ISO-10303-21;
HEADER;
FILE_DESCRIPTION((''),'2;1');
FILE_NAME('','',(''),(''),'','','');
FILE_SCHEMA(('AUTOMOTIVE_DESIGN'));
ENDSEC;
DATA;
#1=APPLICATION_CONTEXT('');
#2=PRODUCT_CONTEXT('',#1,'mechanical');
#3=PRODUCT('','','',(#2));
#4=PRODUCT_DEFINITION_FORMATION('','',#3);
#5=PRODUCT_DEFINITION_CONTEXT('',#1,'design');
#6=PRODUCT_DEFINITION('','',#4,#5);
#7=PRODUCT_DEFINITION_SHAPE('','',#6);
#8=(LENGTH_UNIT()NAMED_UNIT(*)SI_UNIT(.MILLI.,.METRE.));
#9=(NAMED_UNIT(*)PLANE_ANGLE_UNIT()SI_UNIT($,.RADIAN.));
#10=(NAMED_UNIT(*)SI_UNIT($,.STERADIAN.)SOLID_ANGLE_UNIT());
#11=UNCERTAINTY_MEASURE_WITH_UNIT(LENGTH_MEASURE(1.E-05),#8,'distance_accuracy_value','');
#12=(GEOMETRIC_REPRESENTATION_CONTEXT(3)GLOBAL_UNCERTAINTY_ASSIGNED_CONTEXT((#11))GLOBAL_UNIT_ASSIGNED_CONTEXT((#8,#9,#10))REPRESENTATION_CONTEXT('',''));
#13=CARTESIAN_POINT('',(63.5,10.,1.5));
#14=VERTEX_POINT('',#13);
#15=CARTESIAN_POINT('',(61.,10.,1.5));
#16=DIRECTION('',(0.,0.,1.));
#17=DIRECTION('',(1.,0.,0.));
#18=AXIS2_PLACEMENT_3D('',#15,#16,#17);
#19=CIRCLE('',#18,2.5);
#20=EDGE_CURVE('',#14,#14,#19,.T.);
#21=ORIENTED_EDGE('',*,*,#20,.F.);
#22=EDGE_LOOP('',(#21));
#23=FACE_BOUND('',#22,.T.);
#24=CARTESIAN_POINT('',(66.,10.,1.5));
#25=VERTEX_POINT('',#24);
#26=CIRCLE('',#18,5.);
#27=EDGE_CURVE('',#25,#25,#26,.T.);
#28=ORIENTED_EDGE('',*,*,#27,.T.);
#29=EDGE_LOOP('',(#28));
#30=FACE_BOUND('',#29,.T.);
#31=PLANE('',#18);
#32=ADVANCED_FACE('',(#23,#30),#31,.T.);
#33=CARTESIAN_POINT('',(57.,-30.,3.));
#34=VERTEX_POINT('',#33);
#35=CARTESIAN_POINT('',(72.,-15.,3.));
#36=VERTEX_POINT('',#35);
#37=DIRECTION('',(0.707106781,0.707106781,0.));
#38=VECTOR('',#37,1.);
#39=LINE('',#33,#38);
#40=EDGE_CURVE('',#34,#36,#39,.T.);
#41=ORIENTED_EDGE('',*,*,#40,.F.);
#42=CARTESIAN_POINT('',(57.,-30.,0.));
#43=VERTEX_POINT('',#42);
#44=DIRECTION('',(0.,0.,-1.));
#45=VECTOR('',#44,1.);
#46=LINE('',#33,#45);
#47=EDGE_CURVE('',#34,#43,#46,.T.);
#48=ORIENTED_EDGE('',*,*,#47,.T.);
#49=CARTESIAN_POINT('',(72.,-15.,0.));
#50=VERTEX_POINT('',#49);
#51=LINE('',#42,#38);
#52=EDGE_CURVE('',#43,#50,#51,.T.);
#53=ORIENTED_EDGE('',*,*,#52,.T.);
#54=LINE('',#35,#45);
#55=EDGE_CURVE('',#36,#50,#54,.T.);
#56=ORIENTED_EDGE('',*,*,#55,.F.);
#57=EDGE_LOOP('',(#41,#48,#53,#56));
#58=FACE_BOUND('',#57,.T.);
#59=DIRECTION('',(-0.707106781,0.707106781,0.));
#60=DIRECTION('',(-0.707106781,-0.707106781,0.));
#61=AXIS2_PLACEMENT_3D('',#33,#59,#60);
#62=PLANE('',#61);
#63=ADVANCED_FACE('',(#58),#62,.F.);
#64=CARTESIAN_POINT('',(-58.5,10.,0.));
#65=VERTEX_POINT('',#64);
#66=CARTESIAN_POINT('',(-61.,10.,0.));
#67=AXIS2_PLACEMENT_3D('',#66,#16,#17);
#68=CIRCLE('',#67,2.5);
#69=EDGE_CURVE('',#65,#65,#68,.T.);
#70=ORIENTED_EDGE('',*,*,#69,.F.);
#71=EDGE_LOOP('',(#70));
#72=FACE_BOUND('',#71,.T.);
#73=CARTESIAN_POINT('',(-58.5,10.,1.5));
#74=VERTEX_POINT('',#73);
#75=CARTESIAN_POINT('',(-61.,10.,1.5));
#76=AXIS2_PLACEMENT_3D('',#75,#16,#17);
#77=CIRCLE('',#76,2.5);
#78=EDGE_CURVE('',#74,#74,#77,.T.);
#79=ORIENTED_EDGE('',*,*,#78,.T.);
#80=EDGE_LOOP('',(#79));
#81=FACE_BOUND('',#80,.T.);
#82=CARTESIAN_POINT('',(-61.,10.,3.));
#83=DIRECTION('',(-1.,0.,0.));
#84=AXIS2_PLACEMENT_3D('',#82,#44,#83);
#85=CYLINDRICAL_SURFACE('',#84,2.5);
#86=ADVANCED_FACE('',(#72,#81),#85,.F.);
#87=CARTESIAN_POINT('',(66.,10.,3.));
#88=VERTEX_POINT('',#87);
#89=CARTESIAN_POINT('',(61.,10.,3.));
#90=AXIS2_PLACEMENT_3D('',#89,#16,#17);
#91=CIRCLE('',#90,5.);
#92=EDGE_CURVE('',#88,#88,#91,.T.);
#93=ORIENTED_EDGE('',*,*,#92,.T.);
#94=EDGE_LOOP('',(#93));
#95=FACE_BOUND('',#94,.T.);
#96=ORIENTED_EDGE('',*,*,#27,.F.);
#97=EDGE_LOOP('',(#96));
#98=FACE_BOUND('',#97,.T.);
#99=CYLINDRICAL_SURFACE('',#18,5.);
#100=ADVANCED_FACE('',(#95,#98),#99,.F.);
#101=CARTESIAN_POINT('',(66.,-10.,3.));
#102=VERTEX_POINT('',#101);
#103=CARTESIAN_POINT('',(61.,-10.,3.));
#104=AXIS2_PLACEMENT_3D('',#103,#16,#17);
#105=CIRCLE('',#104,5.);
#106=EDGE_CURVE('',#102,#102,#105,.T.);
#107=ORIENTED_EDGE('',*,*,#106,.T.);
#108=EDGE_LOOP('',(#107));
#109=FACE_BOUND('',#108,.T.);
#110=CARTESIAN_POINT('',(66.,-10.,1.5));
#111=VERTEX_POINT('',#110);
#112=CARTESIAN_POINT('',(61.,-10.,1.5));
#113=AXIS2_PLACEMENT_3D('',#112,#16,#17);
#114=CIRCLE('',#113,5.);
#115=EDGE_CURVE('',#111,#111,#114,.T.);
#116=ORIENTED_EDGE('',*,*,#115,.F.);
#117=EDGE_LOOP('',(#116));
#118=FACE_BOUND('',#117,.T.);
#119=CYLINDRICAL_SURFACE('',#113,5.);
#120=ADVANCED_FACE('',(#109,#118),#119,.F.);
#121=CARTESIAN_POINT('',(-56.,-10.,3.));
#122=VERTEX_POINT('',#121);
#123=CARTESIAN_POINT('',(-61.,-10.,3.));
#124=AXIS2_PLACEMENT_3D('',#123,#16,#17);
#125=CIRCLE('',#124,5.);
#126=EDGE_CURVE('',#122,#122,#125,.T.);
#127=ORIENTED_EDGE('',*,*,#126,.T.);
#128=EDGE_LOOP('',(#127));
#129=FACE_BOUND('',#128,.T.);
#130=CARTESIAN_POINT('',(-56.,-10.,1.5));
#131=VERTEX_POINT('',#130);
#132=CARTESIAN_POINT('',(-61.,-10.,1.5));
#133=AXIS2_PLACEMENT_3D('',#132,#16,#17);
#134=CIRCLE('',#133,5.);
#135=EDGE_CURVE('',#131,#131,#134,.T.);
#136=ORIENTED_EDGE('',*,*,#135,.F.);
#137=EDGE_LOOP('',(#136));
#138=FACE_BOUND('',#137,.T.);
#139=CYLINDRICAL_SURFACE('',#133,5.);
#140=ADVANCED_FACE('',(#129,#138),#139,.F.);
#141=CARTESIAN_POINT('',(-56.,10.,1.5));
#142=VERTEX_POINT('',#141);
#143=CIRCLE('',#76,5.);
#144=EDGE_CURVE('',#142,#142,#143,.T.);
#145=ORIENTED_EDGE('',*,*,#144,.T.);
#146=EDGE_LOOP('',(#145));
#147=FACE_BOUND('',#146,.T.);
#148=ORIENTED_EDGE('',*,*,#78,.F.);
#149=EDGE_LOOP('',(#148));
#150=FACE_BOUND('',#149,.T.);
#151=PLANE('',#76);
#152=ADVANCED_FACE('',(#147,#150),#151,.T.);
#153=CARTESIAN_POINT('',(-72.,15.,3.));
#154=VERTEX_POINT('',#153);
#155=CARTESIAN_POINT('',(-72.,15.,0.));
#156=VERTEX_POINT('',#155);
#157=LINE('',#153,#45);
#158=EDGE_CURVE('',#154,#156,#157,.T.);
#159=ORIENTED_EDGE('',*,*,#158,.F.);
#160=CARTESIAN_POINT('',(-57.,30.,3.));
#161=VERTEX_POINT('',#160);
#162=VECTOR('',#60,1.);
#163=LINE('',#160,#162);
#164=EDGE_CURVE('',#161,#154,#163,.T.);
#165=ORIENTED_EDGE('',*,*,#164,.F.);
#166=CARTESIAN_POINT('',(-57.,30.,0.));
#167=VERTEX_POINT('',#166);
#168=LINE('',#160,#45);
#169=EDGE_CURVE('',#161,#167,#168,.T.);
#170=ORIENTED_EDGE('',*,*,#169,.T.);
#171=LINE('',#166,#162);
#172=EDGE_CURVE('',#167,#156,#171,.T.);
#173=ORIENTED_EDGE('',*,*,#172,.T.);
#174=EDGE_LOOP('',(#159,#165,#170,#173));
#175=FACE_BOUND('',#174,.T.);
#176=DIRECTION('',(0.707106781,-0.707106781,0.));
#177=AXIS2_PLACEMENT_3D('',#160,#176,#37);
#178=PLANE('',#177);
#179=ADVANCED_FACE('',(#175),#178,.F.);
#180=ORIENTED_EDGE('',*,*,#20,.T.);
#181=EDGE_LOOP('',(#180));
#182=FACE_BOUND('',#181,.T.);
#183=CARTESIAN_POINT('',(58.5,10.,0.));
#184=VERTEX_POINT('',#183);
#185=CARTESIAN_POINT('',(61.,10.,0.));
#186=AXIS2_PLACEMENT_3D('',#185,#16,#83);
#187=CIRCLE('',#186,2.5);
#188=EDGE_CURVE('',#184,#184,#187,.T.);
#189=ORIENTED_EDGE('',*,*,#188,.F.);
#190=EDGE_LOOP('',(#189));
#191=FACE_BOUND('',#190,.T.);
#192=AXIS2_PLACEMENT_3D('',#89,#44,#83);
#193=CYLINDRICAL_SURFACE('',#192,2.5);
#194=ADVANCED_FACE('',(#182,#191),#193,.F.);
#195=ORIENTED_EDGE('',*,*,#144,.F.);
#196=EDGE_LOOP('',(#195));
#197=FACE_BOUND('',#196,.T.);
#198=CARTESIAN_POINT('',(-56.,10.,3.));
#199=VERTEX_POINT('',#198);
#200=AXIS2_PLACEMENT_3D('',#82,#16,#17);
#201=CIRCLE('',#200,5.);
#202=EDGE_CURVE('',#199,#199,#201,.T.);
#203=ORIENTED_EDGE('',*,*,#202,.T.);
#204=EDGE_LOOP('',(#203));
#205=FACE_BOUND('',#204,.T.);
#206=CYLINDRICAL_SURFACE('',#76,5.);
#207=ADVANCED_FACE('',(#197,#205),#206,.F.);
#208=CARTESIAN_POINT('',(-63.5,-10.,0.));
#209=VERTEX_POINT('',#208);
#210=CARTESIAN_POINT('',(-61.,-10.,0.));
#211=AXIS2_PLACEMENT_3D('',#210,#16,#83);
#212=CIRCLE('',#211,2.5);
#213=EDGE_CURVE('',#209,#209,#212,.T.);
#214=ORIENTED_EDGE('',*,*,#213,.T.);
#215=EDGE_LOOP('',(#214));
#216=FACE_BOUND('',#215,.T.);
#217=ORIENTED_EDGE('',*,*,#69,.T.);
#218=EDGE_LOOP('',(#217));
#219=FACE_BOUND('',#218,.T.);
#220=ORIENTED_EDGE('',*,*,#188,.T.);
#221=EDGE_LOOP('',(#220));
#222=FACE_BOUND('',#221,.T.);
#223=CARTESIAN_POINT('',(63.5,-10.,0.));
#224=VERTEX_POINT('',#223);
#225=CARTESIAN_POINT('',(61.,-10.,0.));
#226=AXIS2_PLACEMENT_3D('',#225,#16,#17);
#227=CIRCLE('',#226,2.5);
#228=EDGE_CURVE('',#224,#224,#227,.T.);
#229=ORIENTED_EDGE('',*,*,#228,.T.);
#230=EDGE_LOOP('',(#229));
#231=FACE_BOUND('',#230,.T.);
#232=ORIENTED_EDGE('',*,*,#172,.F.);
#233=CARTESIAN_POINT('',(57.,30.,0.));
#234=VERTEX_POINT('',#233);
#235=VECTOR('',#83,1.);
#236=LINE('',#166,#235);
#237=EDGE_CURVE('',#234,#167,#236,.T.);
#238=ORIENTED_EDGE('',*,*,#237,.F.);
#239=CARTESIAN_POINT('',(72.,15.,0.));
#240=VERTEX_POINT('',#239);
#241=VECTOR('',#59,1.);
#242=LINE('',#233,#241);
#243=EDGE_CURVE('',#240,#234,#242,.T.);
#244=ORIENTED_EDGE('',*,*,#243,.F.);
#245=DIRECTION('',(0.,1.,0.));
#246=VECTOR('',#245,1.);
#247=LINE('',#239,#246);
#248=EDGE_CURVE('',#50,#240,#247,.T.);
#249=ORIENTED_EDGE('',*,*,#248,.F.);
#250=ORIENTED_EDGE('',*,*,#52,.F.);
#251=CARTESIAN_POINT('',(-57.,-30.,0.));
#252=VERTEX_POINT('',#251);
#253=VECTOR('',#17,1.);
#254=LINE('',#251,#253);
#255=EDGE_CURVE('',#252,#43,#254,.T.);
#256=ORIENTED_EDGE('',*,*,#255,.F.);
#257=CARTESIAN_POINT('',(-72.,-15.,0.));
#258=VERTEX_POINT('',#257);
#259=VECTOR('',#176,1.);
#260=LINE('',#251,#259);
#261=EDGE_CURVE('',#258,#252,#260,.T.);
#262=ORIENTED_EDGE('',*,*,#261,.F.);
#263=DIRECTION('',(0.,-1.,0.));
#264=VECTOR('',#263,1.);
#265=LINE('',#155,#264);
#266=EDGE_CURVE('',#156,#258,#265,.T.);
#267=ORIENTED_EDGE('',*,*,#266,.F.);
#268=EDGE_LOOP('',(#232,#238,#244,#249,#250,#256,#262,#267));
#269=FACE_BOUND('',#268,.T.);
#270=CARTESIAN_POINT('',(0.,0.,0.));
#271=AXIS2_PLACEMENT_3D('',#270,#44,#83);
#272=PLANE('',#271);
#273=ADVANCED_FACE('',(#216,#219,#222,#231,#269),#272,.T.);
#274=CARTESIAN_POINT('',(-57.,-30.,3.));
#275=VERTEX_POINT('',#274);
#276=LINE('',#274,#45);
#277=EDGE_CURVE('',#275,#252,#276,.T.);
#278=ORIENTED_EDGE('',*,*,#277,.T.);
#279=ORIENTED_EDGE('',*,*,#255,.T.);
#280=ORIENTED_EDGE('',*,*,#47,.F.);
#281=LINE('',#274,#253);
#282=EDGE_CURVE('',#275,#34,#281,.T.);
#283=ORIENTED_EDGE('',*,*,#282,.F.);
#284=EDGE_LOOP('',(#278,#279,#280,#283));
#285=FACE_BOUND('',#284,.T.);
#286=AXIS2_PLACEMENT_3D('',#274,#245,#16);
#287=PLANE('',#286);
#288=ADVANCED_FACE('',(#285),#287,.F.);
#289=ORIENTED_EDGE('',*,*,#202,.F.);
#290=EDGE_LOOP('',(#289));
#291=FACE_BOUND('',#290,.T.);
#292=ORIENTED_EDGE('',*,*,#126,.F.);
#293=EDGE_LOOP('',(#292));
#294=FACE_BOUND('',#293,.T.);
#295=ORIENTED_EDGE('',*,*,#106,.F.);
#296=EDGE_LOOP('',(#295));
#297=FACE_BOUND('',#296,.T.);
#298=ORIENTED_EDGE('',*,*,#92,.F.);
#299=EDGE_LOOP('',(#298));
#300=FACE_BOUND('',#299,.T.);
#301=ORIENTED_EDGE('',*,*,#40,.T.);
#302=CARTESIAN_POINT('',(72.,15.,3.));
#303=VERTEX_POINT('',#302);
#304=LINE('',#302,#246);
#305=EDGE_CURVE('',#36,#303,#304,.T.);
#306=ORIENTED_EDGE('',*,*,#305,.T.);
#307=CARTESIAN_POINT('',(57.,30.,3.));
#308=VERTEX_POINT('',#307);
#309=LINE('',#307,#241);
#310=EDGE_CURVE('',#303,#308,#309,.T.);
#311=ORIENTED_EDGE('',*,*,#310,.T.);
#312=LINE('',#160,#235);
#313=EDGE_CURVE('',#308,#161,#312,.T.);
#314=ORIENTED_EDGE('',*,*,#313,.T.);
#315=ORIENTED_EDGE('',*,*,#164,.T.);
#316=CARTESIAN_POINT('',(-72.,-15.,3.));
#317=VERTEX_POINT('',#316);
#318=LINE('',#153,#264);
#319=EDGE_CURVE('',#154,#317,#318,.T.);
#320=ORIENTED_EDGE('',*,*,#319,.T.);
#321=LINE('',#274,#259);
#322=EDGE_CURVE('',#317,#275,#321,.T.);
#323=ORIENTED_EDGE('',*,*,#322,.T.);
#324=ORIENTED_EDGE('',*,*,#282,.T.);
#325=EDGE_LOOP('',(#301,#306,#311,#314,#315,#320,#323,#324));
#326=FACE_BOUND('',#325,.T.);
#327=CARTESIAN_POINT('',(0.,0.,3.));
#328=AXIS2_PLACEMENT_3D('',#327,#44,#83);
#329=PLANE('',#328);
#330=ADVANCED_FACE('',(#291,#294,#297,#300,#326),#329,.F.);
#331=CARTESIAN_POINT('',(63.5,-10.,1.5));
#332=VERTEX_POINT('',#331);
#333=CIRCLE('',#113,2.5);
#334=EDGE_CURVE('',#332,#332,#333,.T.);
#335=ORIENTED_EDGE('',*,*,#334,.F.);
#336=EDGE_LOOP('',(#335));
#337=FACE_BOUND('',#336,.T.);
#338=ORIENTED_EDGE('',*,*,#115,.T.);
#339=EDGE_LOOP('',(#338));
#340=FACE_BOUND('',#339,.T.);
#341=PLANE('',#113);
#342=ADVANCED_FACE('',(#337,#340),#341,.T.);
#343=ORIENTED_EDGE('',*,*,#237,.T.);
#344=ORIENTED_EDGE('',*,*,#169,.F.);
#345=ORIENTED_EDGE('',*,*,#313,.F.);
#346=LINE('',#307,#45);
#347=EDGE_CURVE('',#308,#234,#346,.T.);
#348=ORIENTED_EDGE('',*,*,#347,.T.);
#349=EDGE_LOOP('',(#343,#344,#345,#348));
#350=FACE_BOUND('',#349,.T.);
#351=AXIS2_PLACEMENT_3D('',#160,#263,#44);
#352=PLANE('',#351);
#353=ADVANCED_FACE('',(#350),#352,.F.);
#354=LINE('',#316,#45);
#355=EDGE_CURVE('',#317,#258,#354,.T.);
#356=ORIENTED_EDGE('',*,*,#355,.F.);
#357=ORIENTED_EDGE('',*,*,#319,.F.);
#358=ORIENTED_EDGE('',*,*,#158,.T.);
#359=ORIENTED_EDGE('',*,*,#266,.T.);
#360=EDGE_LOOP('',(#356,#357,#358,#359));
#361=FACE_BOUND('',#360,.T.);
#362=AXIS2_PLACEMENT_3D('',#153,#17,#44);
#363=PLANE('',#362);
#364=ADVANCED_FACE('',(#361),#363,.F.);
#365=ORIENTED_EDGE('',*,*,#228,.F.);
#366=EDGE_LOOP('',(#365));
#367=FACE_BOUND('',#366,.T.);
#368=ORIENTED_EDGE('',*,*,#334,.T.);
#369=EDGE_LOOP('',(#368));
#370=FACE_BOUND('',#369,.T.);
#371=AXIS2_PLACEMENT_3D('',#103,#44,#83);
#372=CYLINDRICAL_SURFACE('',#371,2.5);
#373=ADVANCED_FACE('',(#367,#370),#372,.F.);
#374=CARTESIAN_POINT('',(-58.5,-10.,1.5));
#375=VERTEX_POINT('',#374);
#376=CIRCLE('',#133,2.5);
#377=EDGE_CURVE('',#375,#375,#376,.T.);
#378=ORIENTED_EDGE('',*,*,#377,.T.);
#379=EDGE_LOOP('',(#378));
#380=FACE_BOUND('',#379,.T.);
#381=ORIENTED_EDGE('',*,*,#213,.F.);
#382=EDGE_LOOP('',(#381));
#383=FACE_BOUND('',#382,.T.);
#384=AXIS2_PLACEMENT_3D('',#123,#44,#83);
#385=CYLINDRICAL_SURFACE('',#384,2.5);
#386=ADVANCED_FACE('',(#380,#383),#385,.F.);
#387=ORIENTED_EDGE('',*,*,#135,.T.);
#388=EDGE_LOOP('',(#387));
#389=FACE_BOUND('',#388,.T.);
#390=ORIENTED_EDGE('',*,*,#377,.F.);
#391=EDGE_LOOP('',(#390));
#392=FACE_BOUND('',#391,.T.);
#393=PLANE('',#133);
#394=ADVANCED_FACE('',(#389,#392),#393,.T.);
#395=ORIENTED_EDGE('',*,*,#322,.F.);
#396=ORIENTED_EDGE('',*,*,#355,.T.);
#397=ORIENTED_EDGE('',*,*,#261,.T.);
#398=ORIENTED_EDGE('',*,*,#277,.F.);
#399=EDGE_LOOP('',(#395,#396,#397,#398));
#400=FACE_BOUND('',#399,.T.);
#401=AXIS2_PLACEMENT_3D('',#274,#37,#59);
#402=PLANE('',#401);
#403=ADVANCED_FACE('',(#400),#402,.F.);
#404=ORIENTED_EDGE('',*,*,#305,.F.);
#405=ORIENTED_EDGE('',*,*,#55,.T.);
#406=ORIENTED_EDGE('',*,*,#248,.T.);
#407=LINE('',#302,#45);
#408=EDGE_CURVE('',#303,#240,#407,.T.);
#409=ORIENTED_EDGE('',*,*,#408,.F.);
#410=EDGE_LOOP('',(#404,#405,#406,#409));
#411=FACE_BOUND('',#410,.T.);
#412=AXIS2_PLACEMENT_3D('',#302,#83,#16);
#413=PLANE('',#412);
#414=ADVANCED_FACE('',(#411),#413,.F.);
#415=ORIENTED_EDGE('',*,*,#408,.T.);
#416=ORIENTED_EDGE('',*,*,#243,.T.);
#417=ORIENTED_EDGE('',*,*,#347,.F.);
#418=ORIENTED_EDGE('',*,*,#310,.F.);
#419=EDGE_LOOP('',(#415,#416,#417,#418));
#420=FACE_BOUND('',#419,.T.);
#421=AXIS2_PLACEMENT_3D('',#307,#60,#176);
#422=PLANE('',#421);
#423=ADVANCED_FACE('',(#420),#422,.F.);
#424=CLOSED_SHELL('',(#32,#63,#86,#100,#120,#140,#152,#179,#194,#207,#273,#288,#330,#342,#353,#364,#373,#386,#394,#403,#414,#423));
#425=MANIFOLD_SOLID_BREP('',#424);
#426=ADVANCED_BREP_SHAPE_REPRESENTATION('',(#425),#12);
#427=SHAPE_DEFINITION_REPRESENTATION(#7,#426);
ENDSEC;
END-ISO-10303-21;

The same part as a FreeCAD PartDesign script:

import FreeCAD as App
import Part
import Sketcher

V = App.Vector

doc = App.newDocument("Part")
body = doc.addObject("PartDesign::Body", "Body")

# Sketch on XY plane
sketch1 = doc.addObject("Sketcher::SketchObject", "Sketch")
body.addObject(sketch1)
sketch1.AttachmentSupport = (doc.XY_Plane, [""])
sketch1.MapMode = "FlatFace"
sketch1.addGeometry([
    Part.LineSegment(V(57, 30, 0), V(-57, 30, 0)),  # 0
    Part.LineSegment(V(-57, 30, 0), V(-72, 15, 0)),  # 1
    Part.LineSegment(V(-72, 15, 0), V(-72, -15, 0)),  # 2
    Part.LineSegment(V(-72, -15, 0), V(-57, -30, 0)),  # 3
    Part.LineSegment(V(-57, -30, 0), V(57, -30, 0)),  # 4
    Part.LineSegment(V(57, -30, 0), V(72, -15, 0)),  # 5
    Part.LineSegment(V(72, -15, 0), V(72, 15, 0)),  # 6
    Part.LineSegment(V(72, 15, 0), V(57, 30, 0)),  # 7
    Part.Circle(V(61, -10, 0), V(0, 0, 1), 2.5),  # 8
    Part.Circle(V(-61, -10, 0), V(0, 0, 1), 2.5),  # 9
    Part.Circle(V(61, 10, 0), V(0, 0, 1), 2.5),  # 10
    Part.Circle(V(-61, 10, 0), V(0, 0, 1), 2.5),  # 11
], False)
sketch1.addConstraint([
    Sketcher.Constraint("Coincident", 0, 2, 1, 1),
    Sketcher.Constraint("Coincident", 1, 2, 2, 1),
    Sketcher.Constraint("Coincident", 2, 2, 3, 1),
    Sketcher.Constraint("Coincident", 3, 2, 4, 1),
    Sketcher.Constraint("Coincident", 4, 2, 5, 1),
    Sketcher.Constraint("Coincident", 5, 2, 6, 1),
    Sketcher.Constraint("Coincident", 6, 2, 7, 1),
    Sketcher.Constraint("Coincident", 7, 2, 0, 1),
    Sketcher.Constraint("Horizontal", 0),
    Sketcher.Constraint("Vertical", 2),
    Sketcher.Constraint("Horizontal", 4),
    Sketcher.Constraint("Vertical", 6),
    Sketcher.Constraint("Equal", 8, 9),
    Sketcher.Constraint("Equal", 9, 10),
    Sketcher.Constraint("Equal", 10, 11),
    Sketcher.Constraint("Symmetric", 9, 3, 10, 3, -1, 1),
    Sketcher.Constraint("Symmetric", 8, 3, 11, 3, -1, 1),
    Sketcher.Constraint("Symmetric", 0, 2, 4, 2, -1, 1),
    Sketcher.Constraint("Symmetric", 1, 2, 5, 2, -1, 1),
    Sketcher.Constraint("Symmetric", 8, 3, 9, 3, -2),
    Sketcher.Constraint("Perpendicular", 1, 3),
    Sketcher.Constraint("Perpendicular", 5, 7),
    Sketcher.Constraint("Horizontal", 2, 2, 5, 2),
    Sketcher.Constraint("Horizontal", 1, 2, 6, 2),
    Sketcher.Constraint("Vertical", 0, 2, 3, 2),
    Sketcher.Constraint("Diameter", 8, 5.0),
    Sketcher.Constraint("DistanceX", 0, 2, 0, 1, 114.0),
    Sketcher.Constraint("DistanceY", 2, 2, 2, 1, 30.0),
    Sketcher.Constraint("DistanceX", -1, 1, 8, 3, 61.0),
    Sketcher.Constraint("DistanceY", 8, 3, -1, 1, 10.0),
    Sketcher.Constraint("DistanceY", -1, 1, 0, 2, 30.0),
])
pad1 = doc.addObject("PartDesign::Pad", "Pad")
body.addObject(pad1)
pad1.Profile = sketch1
pad1.Length = 3

# Sketch on XY plane
sketch2 = doc.addObject("Sketcher::SketchObject", "Sketch001")
body.addObject(sketch2)
sketch2.AttachmentSupport = (doc.XY_Plane, [""])
sketch2.MapMode = "FlatFace"
sketch2.AttachmentOffset = App.Placement(V(0, 0, 3), App.Rotation())
sketch2.addGeometry([
    Part.Circle(V(-61, -10, 0), V(0, 0, 1), 5),
    Part.Circle(V(-61, 10, 0), V(0, 0, 1), 5),
    Part.Circle(V(61, 10, 0), V(0, 0, 1), 5),
    Part.Circle(V(61, -10, 0), V(0, 0, 1), 5),
], False)
sketch2.addConstraint([
    Sketcher.Constraint("Equal", 0, 1),
    Sketcher.Constraint("Equal", 1, 2),
    Sketcher.Constraint("Equal", 2, 3),
    Sketcher.Constraint("Symmetric", 0, 3, 2, 3, -1, 1),
    Sketcher.Constraint("Symmetric", 1, 3, 3, 3, -1, 1),
    Sketcher.Constraint("Symmetric", 1, 3, 2, 3, -2),
    Sketcher.Constraint("Diameter", 0, 10.0),
    Sketcher.Constraint("DistanceX", 0, 3, -1, 1, 61.0),
    Sketcher.Constraint("DistanceY", 0, 3, -1, 1, 10.0),
])
pocket1 = doc.addObject("PartDesign::Pocket", "Pocket")
body.addObject(pocket1)
pocket1.Profile = sketch2
pocket1.Length = 1.5

doc.recompute()
